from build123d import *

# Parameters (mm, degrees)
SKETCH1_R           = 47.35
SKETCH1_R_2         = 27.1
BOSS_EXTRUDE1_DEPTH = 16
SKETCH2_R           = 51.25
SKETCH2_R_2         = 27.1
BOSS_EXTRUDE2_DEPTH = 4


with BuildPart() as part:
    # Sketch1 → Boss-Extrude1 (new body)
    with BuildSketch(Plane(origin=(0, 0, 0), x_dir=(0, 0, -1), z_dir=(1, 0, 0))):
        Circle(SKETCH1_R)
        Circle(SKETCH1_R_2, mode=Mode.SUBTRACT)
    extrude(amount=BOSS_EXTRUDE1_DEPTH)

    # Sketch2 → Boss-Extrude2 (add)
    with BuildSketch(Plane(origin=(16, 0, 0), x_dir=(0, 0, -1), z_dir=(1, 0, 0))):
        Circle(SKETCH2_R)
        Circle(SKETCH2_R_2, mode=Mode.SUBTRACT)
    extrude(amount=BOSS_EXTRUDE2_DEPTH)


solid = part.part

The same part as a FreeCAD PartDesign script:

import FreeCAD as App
import Part
import Sketcher

V = App.Vector
Q = App.Units.Quantity

doc = App.newDocument("Part")
params = doc.addObject("Spreadsheet::Sheet", "Params")
for row, (alias, value) in enumerate([
    ("sketch1_diameter", "94.7 mm"),
    ("sketch1_diameter2", "54.2 mm"),
    ("pad1_length", "16 mm"),
    ("sketch2_diameter", "102.5 mm"),
    ("sketch2_diameter2", "54.2 mm"),
    ("pad2_length", "4 mm"),
], start=1):
    params.set(f"A{row}", alias)
    params.set(f"B{row}", "=" + value)
    params.setAlias(f"B{row}", alias)

body = doc.addObject("PartDesign::Body", "Body")

# Sketch on YZ plane
sketch1 = doc.addObject("Sketcher::SketchObject", "Sketch")
body.addObject(sketch1)
sketch1.AttachmentSupport = (doc.YZ_Plane, [""])
sketch1.MapMode = "FlatFace"
sketch1.addGeometry([
    Part.Circle(V(0, 0, 0), V(0, 0, 1), 47),
    Part.Circle(V(0, 0, 0), V(0, 0, 1), 27),
], False)
sketch1.addConstraint([
    Sketcher.Constraint("Coincident", 0, 3, -1, 1),
    Sketcher.Constraint("Coincident", 1, 3, -1, 1),
    Sketcher.Constraint("Diameter", 0, Q("94.7 mm")),
    Sketcher.Constraint("Diameter", 1, Q("54.2 mm")),
])
sketch1.setExpression("Constraints[2]", "Params.sketch1_diameter")
sketch1.setExpression("Constraints[3]", "Params.sketch1_diameter2")
pad1 = doc.addObject("PartDesign::Pad", "Pad")
body.addObject(pad1)
pad1.Profile = sketch1
pad1.setExpression("Length", "Params.pad1_length")

# Sketch on YZ plane
sketch2 = doc.addObject("Sketcher::SketchObject", "Sketch001")
body.addObject(sketch2)
sketch2.AttachmentSupport = (doc.YZ_Plane, [""])
sketch2.MapMode = "FlatFace"
sketch2.AttachmentOffset = App.Placement(V(0, 0, 16), App.Rotation())
sketch2.addGeometry([
    Part.Circle(V(0, 0, 0), V(0, 0, 1), 51),
    Part.Circle(V(0, 0, 0), V(0, 0, 1), 27),
], False)
sketch2.addConstraint([
    Sketcher.Constraint("Coincident", 0, 3, -1, 1),
    Sketcher.Constraint("Coincident", 1, 3, -1, 1),
    Sketcher.Constraint("Diameter", 0, Q("102.5 mm")),
    Sketcher.Constraint("Diameter", 1, Q("54.2 mm")),
])
sketch2.setExpression("Constraints[2]", "Params.sketch2_diameter")
sketch2.setExpression("Constraints[3]", "Params.sketch2_diameter2")
pad2 = doc.addObject("PartDesign::Pad", "Pad001")
body.addObject(pad2)
pad2.Profile = sketch2
pad2.setExpression("Length", "Params.pad2_length")

doc.recompute()
